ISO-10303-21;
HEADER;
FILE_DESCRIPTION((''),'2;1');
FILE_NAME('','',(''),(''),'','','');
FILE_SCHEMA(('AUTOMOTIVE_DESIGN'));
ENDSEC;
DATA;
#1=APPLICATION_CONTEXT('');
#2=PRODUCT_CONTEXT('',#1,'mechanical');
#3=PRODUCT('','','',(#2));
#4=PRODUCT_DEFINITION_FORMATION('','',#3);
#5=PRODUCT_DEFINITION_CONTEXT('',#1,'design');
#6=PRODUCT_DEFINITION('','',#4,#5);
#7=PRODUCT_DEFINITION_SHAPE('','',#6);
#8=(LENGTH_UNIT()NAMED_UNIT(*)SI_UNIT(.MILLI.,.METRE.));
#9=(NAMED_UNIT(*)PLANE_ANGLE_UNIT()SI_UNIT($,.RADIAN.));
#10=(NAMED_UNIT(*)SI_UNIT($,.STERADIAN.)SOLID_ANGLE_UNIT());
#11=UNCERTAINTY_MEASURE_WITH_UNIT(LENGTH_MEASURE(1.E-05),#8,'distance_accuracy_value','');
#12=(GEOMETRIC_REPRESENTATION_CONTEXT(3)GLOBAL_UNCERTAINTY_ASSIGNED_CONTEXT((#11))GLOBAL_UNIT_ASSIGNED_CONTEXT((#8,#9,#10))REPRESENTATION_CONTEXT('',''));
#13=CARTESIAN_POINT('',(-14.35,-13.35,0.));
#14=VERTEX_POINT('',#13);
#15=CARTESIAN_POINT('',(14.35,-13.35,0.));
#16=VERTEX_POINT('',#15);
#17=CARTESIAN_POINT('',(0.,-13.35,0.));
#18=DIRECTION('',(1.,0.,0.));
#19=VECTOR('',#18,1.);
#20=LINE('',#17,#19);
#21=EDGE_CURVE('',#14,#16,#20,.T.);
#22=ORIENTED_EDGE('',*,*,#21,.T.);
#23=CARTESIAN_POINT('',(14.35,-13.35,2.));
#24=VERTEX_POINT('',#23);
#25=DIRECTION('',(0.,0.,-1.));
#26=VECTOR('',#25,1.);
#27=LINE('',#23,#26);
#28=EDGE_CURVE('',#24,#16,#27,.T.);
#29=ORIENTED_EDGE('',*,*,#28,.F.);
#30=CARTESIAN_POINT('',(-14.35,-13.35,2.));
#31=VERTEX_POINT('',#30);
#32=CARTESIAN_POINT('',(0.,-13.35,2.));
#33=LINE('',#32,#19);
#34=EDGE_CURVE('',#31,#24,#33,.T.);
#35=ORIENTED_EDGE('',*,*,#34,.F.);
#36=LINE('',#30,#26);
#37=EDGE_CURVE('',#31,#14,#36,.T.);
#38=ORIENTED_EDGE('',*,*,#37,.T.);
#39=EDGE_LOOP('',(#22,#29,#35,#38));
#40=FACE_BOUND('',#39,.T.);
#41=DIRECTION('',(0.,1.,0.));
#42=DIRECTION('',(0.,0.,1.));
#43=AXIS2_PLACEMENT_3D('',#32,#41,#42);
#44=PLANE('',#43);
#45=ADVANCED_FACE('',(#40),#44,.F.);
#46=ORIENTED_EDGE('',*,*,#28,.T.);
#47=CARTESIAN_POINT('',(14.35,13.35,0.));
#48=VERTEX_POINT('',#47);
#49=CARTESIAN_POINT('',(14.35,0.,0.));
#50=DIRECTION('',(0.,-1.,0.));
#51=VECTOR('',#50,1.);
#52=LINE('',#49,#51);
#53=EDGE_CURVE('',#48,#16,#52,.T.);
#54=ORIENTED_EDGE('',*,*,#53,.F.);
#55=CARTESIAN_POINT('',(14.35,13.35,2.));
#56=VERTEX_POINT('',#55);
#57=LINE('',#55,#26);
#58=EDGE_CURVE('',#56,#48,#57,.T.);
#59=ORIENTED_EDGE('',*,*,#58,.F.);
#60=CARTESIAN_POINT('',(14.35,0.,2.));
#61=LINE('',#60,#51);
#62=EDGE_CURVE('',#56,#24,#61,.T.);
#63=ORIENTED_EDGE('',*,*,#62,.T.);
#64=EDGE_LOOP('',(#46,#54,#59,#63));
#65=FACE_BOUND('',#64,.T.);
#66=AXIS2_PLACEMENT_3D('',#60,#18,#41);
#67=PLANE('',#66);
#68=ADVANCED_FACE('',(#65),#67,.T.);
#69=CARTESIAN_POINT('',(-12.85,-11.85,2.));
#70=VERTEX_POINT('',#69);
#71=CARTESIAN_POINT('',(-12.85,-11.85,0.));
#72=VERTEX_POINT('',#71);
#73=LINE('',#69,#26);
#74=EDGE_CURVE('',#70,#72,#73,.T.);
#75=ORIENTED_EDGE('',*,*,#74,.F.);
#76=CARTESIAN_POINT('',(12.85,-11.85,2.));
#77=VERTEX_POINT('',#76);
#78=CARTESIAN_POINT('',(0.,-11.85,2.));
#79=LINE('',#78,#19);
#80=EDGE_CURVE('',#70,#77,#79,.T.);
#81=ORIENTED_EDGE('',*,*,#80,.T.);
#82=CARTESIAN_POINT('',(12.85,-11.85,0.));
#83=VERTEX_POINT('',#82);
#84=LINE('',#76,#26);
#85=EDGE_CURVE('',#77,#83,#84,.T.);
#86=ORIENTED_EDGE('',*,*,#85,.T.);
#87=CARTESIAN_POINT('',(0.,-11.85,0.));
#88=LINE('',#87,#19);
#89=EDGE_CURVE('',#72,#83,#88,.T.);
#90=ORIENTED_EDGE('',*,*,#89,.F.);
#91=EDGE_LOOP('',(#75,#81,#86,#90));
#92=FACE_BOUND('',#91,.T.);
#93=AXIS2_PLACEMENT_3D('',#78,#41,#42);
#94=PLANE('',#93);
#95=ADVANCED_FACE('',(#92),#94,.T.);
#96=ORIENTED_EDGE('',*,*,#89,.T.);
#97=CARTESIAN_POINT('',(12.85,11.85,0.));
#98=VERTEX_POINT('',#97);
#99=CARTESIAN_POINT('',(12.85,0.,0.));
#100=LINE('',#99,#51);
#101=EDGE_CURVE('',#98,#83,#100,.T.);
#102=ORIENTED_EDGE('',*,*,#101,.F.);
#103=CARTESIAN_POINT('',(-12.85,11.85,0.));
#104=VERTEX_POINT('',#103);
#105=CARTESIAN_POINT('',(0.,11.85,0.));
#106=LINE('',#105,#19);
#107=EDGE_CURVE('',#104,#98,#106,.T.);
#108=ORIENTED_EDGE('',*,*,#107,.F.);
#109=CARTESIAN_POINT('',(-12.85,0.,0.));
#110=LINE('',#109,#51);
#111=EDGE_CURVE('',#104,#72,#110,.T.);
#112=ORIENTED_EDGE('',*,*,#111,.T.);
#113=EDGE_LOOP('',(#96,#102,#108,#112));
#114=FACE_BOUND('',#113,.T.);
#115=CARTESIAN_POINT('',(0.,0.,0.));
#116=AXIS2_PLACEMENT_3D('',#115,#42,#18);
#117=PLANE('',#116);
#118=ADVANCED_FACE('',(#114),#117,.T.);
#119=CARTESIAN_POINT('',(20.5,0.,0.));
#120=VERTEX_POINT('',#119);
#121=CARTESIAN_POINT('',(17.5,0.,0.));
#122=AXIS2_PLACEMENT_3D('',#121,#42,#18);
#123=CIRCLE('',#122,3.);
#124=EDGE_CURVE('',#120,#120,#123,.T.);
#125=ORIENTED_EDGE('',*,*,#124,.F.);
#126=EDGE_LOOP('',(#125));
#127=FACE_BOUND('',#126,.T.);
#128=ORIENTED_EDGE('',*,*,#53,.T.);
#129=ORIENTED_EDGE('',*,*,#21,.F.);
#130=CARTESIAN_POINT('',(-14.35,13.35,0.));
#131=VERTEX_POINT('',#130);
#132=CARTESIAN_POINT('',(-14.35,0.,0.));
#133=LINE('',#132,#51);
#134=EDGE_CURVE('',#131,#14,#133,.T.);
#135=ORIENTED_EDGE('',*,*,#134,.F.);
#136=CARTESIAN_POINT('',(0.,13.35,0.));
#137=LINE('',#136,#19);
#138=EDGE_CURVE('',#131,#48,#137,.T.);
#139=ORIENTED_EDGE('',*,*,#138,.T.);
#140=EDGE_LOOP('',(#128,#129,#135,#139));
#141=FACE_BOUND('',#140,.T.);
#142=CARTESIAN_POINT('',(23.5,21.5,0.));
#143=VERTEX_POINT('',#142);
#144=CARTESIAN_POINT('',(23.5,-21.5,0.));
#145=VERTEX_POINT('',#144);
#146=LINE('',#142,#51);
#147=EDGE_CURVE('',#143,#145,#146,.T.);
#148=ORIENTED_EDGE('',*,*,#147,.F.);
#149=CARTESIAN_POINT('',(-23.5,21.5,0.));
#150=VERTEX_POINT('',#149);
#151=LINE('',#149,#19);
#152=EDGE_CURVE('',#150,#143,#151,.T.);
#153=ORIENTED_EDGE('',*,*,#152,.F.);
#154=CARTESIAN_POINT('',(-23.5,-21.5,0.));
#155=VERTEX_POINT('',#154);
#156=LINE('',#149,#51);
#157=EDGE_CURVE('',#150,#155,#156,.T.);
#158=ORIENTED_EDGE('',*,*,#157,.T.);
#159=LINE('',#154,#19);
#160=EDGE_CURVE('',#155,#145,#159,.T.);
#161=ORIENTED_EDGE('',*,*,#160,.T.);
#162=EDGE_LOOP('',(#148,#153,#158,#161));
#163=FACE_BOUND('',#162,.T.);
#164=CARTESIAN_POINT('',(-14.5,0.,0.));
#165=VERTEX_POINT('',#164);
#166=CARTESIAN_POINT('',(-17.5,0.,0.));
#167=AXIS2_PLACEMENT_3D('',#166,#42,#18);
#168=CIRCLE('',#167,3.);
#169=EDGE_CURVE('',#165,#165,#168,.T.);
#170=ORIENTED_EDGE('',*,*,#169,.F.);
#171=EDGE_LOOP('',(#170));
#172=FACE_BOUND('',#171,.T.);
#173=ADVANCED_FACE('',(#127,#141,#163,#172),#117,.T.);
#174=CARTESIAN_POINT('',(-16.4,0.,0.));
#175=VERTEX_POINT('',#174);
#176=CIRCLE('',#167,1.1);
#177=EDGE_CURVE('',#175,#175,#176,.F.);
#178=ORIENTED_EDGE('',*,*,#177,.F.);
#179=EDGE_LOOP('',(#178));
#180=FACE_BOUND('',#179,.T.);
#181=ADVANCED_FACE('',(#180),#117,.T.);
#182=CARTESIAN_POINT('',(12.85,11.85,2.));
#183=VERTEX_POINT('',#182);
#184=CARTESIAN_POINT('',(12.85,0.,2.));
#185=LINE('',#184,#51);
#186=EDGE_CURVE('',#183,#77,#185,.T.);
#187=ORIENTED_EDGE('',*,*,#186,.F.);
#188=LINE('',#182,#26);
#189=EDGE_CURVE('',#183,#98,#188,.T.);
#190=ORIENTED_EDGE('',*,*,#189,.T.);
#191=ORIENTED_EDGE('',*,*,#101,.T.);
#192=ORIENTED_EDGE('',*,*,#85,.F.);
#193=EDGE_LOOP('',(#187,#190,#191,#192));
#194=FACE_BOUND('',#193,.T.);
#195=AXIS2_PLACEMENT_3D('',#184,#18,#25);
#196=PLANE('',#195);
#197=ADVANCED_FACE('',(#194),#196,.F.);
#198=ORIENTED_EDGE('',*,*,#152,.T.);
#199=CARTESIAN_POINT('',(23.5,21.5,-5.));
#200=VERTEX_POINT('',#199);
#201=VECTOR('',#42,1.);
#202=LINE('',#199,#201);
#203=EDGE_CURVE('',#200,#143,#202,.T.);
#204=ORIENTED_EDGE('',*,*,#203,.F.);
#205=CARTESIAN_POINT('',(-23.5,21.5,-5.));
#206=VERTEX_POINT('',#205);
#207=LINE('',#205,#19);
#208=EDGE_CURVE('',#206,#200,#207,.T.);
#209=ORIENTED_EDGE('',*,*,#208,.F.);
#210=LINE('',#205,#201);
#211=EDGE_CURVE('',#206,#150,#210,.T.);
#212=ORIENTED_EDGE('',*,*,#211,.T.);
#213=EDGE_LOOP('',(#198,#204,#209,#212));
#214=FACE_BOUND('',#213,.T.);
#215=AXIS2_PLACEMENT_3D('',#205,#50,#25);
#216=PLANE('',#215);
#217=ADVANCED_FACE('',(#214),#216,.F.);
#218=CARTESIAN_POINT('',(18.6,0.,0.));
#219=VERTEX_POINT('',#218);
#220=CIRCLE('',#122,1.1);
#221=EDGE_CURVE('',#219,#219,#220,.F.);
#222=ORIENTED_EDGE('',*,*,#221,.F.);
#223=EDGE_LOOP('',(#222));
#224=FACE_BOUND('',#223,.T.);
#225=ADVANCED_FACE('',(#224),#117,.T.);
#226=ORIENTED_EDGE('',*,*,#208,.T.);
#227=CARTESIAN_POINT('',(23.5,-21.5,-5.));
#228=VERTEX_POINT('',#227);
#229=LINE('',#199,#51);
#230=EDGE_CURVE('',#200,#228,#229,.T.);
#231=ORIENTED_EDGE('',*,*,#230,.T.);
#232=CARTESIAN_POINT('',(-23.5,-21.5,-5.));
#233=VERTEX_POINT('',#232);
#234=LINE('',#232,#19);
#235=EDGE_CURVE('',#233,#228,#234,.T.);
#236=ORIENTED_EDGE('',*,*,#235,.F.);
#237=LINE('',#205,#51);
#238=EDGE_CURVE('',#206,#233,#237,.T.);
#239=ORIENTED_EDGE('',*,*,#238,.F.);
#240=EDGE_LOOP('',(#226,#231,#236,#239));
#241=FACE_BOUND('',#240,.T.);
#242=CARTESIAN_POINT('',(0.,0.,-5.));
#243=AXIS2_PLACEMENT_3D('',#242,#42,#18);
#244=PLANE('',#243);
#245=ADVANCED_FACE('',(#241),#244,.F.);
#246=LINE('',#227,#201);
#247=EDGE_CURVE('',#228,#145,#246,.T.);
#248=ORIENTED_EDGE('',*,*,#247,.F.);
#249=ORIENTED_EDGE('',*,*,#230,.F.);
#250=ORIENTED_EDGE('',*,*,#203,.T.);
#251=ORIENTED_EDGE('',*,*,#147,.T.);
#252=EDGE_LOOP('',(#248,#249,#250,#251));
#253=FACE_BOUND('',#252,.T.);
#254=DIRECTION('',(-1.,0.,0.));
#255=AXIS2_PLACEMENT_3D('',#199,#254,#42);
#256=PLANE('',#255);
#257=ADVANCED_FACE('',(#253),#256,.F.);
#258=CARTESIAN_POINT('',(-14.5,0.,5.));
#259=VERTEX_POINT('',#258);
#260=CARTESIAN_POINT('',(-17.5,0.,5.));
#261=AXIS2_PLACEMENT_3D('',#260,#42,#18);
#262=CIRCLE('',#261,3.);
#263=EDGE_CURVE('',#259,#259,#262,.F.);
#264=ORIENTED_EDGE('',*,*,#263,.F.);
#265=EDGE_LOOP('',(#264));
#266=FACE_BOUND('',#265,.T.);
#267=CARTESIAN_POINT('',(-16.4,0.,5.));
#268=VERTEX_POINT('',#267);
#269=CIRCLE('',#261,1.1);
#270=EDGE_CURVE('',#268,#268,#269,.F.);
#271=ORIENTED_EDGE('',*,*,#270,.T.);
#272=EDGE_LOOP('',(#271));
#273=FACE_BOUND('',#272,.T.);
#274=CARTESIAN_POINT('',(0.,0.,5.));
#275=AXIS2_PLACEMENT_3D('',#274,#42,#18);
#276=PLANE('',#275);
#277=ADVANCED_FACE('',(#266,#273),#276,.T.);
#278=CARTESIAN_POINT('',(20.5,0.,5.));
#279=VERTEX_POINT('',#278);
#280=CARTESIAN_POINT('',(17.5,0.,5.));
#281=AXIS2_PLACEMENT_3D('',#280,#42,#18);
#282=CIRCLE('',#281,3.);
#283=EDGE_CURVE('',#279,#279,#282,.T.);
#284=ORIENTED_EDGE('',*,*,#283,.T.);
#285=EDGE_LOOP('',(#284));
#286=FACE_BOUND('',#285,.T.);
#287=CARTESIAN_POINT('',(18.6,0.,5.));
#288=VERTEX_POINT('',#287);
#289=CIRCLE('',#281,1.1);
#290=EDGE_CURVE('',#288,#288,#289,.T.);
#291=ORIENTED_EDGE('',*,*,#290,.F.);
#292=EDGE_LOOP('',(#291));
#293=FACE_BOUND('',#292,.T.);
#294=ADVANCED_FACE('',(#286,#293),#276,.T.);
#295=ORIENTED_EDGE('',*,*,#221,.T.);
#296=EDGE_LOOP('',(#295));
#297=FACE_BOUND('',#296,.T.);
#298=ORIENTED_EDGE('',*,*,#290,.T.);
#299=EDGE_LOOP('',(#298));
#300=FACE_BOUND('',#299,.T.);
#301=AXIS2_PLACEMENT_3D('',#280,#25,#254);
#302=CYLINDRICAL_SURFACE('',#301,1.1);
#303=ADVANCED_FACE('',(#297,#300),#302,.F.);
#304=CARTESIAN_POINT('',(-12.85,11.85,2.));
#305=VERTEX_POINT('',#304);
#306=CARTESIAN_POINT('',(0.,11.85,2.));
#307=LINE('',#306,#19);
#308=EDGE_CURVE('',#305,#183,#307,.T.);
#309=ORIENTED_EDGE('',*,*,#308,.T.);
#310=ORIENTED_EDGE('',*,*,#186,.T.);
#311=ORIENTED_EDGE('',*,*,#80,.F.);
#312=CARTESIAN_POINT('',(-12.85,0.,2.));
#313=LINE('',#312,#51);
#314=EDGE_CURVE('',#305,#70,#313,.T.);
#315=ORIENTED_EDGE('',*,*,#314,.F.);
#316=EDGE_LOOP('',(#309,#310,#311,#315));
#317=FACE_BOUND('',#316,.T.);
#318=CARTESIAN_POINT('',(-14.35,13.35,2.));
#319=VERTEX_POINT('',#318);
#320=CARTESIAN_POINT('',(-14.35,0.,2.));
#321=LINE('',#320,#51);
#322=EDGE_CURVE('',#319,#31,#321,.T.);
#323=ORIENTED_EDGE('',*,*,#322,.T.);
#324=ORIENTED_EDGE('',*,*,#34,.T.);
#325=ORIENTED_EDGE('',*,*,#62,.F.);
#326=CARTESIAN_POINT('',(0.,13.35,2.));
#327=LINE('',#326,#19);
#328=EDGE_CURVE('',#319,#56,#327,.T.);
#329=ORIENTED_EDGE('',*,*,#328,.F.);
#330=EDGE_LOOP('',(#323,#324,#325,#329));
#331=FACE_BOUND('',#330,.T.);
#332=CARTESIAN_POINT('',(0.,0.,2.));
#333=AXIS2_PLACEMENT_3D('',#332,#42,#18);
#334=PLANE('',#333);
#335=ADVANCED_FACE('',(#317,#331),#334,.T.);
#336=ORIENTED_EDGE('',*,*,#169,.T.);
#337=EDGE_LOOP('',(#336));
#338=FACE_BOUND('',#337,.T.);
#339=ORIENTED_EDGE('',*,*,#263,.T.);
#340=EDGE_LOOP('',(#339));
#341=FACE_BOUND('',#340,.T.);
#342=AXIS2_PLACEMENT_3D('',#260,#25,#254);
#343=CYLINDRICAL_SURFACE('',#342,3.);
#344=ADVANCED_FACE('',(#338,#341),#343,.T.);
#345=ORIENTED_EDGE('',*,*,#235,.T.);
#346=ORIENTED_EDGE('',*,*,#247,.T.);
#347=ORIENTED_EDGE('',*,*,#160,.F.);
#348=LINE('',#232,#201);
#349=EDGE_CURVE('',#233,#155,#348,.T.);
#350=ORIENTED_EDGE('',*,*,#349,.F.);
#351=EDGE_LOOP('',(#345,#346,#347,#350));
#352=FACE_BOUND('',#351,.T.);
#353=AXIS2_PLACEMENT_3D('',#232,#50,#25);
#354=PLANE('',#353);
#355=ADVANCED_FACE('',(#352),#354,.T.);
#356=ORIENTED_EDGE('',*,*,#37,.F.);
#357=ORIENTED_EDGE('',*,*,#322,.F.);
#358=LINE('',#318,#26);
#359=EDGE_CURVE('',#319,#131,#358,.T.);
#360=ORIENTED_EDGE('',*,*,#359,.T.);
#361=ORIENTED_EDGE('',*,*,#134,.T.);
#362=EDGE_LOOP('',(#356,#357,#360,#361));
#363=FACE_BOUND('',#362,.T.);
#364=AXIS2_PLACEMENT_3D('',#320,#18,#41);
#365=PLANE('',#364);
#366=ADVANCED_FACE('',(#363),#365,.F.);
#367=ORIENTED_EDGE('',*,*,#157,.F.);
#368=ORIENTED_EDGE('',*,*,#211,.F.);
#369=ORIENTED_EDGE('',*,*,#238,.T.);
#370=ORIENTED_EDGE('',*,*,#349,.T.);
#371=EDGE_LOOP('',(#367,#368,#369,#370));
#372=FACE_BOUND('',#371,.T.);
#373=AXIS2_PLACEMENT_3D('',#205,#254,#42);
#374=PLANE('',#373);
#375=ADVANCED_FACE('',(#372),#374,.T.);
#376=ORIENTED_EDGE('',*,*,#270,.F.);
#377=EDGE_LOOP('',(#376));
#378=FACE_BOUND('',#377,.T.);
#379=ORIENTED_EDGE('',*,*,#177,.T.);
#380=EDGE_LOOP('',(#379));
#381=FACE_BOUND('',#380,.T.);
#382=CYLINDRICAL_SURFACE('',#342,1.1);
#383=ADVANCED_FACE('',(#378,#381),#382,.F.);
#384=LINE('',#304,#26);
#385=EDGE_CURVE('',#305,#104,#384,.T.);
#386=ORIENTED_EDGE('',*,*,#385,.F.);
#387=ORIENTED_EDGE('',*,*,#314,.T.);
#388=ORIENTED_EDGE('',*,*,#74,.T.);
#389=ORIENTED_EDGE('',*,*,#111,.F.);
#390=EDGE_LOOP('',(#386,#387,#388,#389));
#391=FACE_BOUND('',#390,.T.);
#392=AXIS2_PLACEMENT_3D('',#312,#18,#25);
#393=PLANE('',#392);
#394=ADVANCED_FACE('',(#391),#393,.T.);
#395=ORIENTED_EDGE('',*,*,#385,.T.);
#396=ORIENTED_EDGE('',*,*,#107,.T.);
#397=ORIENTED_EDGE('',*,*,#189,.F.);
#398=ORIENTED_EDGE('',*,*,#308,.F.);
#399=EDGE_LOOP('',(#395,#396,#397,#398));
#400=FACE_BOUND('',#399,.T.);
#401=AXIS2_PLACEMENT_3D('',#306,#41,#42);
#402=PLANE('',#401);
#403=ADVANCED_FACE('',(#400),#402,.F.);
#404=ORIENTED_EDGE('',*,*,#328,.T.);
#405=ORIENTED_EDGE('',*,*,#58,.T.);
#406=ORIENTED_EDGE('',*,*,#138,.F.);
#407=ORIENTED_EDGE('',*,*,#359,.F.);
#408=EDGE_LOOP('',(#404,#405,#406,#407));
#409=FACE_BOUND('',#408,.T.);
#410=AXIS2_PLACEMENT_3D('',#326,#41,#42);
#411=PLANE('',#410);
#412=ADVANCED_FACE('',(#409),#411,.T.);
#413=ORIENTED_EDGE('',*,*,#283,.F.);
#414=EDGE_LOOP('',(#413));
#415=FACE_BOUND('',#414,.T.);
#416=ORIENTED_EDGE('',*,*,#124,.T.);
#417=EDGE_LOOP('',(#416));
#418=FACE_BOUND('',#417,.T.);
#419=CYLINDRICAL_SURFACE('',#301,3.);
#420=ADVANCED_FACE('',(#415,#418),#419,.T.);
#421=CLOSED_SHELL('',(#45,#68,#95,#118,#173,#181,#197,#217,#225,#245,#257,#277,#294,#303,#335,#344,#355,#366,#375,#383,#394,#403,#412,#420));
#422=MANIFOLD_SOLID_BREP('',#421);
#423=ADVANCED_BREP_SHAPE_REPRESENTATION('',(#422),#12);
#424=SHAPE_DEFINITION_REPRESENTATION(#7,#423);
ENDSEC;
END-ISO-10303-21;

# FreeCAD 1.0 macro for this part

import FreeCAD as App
import Part
import Sketcher
from FreeCAD import Vector

doc = App.newDocument("Part")
body = doc.addObject("PartDesign::Body", "Body")

sketch1 = body.newObject("Sketcher::SketchObject", "Sketch")
sketch1.AttachmentSupport = (doc.getObject("XY_Plane"), [""])
sketch1.MapMode = "FlatFace"
sketch1.addGeometry(Part.LineSegment(Vector(-14, 13, 0), Vector(-14, -13, 0)), False)
sketch1.addGeometry(Part.LineSegment(Vector(-14, -13, 0), Vector(14, -13, 0)), False)
sketch1.addGeometry(Part.LineSegment(Vector(14, -13, 0), Vector(14, 13, 0)), False)
sketch1.addGeometry(Part.LineSegment(Vector(14, 13, 0), Vector(-14, 13, 0)), False)
sketch1.addGeometry(Part.LineSegment(Vector(13, -12, 0), Vector(-13, -12, 0)), False)
sketch1.addGeometry(Part.LineSegment(Vector(-13, -12, 0), Vector(-13, 12, 0)), False)
sketch1.addGeometry(Part.LineSegment(Vector(-13, 12, 0), Vector(13, 12, 0)), False)
sketch1.addGeometry(Part.LineSegment(Vector(13, 12, 0), Vector(13, -12, 0)), False)
sketch1.addConstraint(Sketcher.Constraint("Coincident", 0, 2, 1, 1))
sketch1.addConstraint(Sketcher.Constraint("Coincident", 1, 2, 2, 1))
sketch1.addConstraint(Sketcher.Constraint("Coincident", 2, 2, 3, 1))
sketch1.addConstraint(Sketcher.Constraint("Coincident", 3, 2, 0, 1))
sketch1.addConstraint(Sketcher.Constraint("Coincident", 4, 2, 5, 1))
sketch1.addConstraint(Sketcher.Constraint("Coincident", 5, 2, 6, 1))
sketch1.addConstraint(Sketcher.Constraint("Coincident", 6, 2, 7, 1))
sketch1.addConstraint(Sketcher.Constraint("Coincident", 7, 2, 4, 1))
sketch1.addConstraint(Sketcher.Constraint("Vertical", 0))
sketch1.addConstraint(Sketcher.Constraint("Horizontal", 1))
sketch1.addConstraint(Sketcher.Constraint("Vertical", 2))
sketch1.addConstraint(Sketcher.Constraint("Horizontal", 3))
sketch1.addConstraint(Sketcher.Constraint("Horizontal", 4))
sketch1.addConstraint(Sketcher.Constraint("Vertical", 5))
sketch1.addConstraint(Sketcher.Constraint("Horizontal", 6))
sketch1.addConstraint(Sketcher.Constraint("Vertical", 7))
sketch1.addConstraint(Sketcher.Constraint("Symmetric", 0, 2, 2, 2, -1, 1))
sketch1.addConstraint(Sketcher.Constraint("Symmetric", 4, 2, 6, 2, -1, 1))
sketch1.addConstraint(Sketcher.Constraint("DistanceX", 1, 1, 1, 2, 28.7))
sketch1.addConstraint(Sketcher.Constraint("DistanceX", 4, 2, 4, 1, 25.7))
sketch1.addConstraint(Sketcher.Constraint("DistanceY", 0, 2, 0, 1, 26.7))
sketch1.addConstraint(Sketcher.Constraint("DistanceY", 5, 1, 5, 2, 23.7))
pad1 = body.newObject("PartDesign::Pad", "Pad")
pad1.Profile = sketch1
pad1.Length = 2
body2 = doc.addObject("PartDesign::Body", "Body001")

sketch2 = body2.newObject("Sketcher::SketchObject", "Sketch001")
sketch2.AttachmentSupport = (doc.getObject("XY_Plane001"), [""])
sketch2.MapMode = "FlatFace"
sketch2.addGeometry(Part.Circle(Vector(17.5, 0, 0), Vector(0, 0, 1), 3), False)
sketch2.addGeometry(Part.Circle(Vector(17.5, 0, 0), Vector(0, 0, 1), 1.1), False)
sketch2.addConstraint(Sketcher.Constraint("Coincident", 1, 3, 0, 3))
sketch2.addConstraint(Sketcher.Constraint("PointOnObject", 0, 3, -1))
sketch2.addConstraint(Sketcher.Constraint("Diameter", 0, 6.0))
sketch2.addConstraint(Sketcher.Constraint("Diameter", 1, 2.2))
sketch2.addConstraint(Sketcher.Constraint("DistanceX", -1, 1, 0, 3, 17.5))
pad2 = body2.newObject("PartDesign::Pad", "Pad001")
pad2.Profile = sketch2
pad2.Length = 5
body3 = doc.addObject("PartDesign::Body", "Body002")

sketch3 = body3.newObject("Sketcher::SketchObject", "Sketch002")
sketch3.AttachmentSupport = (doc.getObject("XY_Plane002"), [""])
sketch3.MapMode = "FlatFace"
sketch3.addGeometry(Part.Circle(Vector(-17.5, 0, 0), Vector(0, 0, 1), 3), False)
sketch3.addGeometry(Part.Circle(Vector(-17.5, 0, 0), Vector(0, 0, 1), 1.1), False)
sketch3.addConstraint(Sketcher.Constraint("Coincident", 1, 3, 0, 3))
sketch3.addConstraint(Sketcher.Constraint("PointOnObject", 0, 3, -1))
sketch3.addConstraint(Sketcher.Constraint("Diameter", 0, 6.0))
sketch3.addConstraint(Sketcher.Constraint("Diameter", 1, 2.2))
sketch3.addConstraint(Sketcher.Constraint("DistanceX", 0, 3, -1, 1, 17.5))
pad3 = body3.newObject("PartDesign::Pad", "Pad002")
pad3.Profile = sketch3
pad3.Length = 5
body.AllowCompound = True
doc.recompute()

boolean = body.newObject("PartDesign::Boolean", "Boolean")
boolean.Type = "Fuse"
boolean.addObjects([body2])
doc.recompute()

boolean2 = body.newObject("PartDesign::Boolean", "Boolean001")
boolean2.Type = "Fuse"
boolean2.addObjects([body3])

sketch4 = body.newObject("Sketcher::SketchObject", "Sketch003")
sketch4.AttachmentSupport = (doc.getObject("XY_Plane"), [""])
sketch4.MapMode = "FlatFace"
sketch4.addGeometry(Part.LineSegment(Vector(-24, 22, 0), Vector(-24, -22, 0)), False)
sketch4.addGeometry(Part.LineSegment(Vector(-24, -22, 0), Vector(24, -22, 0)), False)
sketch4.addGeometry(Part.LineSegment(Vector(24, -22, 0), Vector(24, 22, 0)), False)
sketch4.addGeometry(Part.LineSegment(Vector(24, 22, 0), Vector(-24, 22, 0)), False)
sketch4.addConstraint(Sketcher.Constraint("Coincident", 0, 2, 1, 1))
sketch4.addConstraint(Sketcher.Constraint("Coincident", 1, 2, 2, 1))
sketch4.addConstraint(Sketcher.Constraint("Coincident", 2, 2, 3, 1))
sketch4.addConstraint(Sketcher.Constraint("Coincident", 3, 2, 0, 1))
sketch4.addConstraint(Sketcher.Constraint("Vertical", 0))
sketch4.addConstraint(Sketcher.Constraint("Horizontal", 1))
sketch4.addConstraint(Sketcher.Constraint("Vertical", 2))
sketch4.addConstraint(Sketcher.Constraint("Horizontal", 3))
sketch4.addConstraint(Sketcher.Constraint("Symmetric", 0, 2, 2, 2, -1, 1))
sketch4.addConstraint(Sketcher.Constraint("DistanceX", 1, 1, 1, 2, 47.0))
sketch4.addConstraint(Sketcher.Constraint("DistanceY", 0, 2, 0, 1, 43.0))
pad4 = body.newObject("PartDesign::Pad", "Pad003")
pad4.Profile = sketch4
pad4.Length = 5
pad4.Reversed = True

doc.recompute()
